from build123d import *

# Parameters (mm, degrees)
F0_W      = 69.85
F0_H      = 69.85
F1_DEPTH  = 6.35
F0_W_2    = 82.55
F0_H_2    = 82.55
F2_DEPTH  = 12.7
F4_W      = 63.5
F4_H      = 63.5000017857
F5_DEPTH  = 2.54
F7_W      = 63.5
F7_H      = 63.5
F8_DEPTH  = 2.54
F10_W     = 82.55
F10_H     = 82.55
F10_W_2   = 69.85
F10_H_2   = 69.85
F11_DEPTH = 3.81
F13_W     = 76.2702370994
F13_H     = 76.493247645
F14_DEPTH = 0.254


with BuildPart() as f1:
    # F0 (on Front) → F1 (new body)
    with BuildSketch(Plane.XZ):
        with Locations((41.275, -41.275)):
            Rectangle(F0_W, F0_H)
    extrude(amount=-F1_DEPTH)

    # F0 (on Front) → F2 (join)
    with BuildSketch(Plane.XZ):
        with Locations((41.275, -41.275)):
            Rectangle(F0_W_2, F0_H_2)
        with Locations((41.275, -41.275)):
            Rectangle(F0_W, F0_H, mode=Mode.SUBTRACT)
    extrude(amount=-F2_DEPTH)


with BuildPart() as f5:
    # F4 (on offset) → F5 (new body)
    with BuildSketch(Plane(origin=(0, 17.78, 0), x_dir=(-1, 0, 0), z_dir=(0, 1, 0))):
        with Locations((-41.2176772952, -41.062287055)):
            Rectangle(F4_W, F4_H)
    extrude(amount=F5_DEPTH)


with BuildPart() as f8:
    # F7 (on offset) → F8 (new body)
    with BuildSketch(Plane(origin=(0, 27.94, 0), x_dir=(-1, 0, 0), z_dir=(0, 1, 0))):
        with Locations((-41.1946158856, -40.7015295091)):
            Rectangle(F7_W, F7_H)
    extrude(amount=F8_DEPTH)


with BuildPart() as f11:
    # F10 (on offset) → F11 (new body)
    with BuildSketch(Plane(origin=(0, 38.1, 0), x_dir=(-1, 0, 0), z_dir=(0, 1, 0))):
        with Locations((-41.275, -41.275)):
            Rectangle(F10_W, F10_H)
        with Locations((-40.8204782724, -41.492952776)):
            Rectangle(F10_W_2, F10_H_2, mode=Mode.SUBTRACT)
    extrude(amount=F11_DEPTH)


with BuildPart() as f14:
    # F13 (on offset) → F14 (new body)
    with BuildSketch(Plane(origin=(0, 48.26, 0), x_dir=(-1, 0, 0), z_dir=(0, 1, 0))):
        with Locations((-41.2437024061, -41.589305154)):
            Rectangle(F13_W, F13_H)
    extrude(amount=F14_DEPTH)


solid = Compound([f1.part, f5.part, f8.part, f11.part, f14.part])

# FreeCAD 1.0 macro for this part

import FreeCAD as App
import Part
import Sketcher

V = App.Vector
Q = App.Units.Quantity

doc = App.newDocument("Part")
params = doc.addObject("Spreadsheet::Sheet", "Params")
for row, (alias, value) in enumerate([
    ("sketch1_width", "2.75 in"),
    ("pad1_length", "0.25 in"),
    ("sketch2_width", "3.25 in"),
    ("pad2_length", "0.5 in"),
    ("sketch3_width", "2.5 in"),
    ("pad3_length", "0.1 in"),
    ("sketch4_width", "2.5 in"),
    ("pad4_length", "0.1 in"),
    ("sketch5_width", "3.25 in"),
    ("sketch5_width2", "2.75 in"),
    ("pad5_length", "0.15 in"),
    ("pad6_length", "0.01 in"),
], start=1):
    params.set(f"A{row}", alias)
    params.set(f"B{row}", "=" + value)
    params.setAlias(f"B{row}", alias)

body = doc.addObject("PartDesign::Body", "Body")

# Sketch on XZ plane
sketch1 = body.newObject("Sketcher::SketchObject", "Sketch")
sketch1.AttachmentSupport = (doc.getObject("XZ_Plane"), [""])
sketch1.MapMode = "FlatFace"
sketch1.addGeometry(Part.LineSegment(V(6.35, -6.35, 0), V(6.35, -76.2, 0)), False)
sketch1.addGeometry(Part.LineSegment(V(6.35, -76.2, 0), V(76.2, -76.2, 0)), False)
sketch1.addGeometry(Part.LineSegment(V(76.2, -76.2, 0), V(76.2, -6.35, 0)), False)
sketch1.addGeometry(Part.LineSegment(V(76.2, -6.35, 0), V(6.35, -6.35, 0)), False)
sketch1.addConstraint(Sketcher.Constraint("Coincident", 0, 2, 1, 1))
sketch1.addConstraint(Sketcher.Constraint("Coincident", 1, 2, 2, 1))
sketch1.addConstraint(Sketcher.Constraint("Coincident", 2, 2, 3, 1))
sketch1.addConstraint(Sketcher.Constraint("Coincident", 3, 2, 0, 1))
sketch1.addConstraint(Sketcher.Constraint("Vertical", 0))
sketch1.addConstraint(Sketcher.Constraint("Horizontal", 1))
sketch1.addConstraint(Sketcher.Constraint("Vertical", 2))
sketch1.addConstraint(Sketcher.Constraint("Horizontal", 3))
sketch1.addConstraint(Sketcher.Constraint("Equal", 3, 0))
sketch1.addConstraint(Sketcher.Constraint("DistanceY", 0, 2, -1, 1, Q("3 in")))
sketch1.addConstraint(Sketcher.Constraint("DistanceX", -1, 1, 1, 2, Q("3 in")))
sketch1.addConstraint(Sketcher.Constraint("DistanceX", 1, 1, 1, 2, Q("2.75 in")))
sketch1.setExpression("Constraints[11]", "Params.sketch1_width")
pad1 = body.newObject("PartDesign::Pad", "Pad")
pad1.Profile = sketch1
pad1.setExpression("Length", "Params.pad1_length")
pad1.Reversed = True

# Sketch on XZ plane
sketch2 = body.newObject("Sketcher::SketchObject", "Sketch001")
sketch2.AttachmentSupport = (doc.getObject("XZ_Plane"), [""])
sketch2.MapMode = "FlatFace"
sketch2.addGeometry(Part.LineSegment(V(0, 0, 0), V(0, -82.55, 0)), False)
sketch2.addGeometry(Part.LineSegment(V(0, -82.55, 0), V(82.55, -82.55, 0)), False)
sketch2.addGeometry(Part.LineSegment(V(82.55, -82.55, 0), V(82.55, 0, 0)), False)
sketch2.addGeometry(Part.LineSegment(V(82.55, 0, 0), V(0, 0, 0)), False)
sketch2.addGeometry(Part.LineSegment(V(76.2, -76.2, 0), V(6.35, -76.2, 0)), False)
sketch2.addGeometry(Part.LineSegment(V(6.35, -76.2, 0), V(6.35, -6.35, 0)), False)
sketch2.addGeometry(Part.LineSegment(V(6.35, -6.35, 0), V(76.2, -6.35, 0)), False)
sketch2.addGeometry(Part.LineSegment(V(76.2, -6.35, 0), V(76.2, -76.2, 0)), False)
sketch2.addConstraint(Sketcher.Constraint("Coincident", 0, 2, 1, 1))
sketch2.addConstraint(Sketcher.Constraint("Coincident", 1, 2, 2, 1))
sketch2.addConstraint(Sketcher.Constraint("Coincident", 2, 2, 3, 1))
sketch2.addConstraint(Sketcher.Constraint("Coincident", 3, 2, 0, 1))
sketch2.addConstraint(Sketcher.Constraint("Coincident", 4, 2, 5, 1))
sketch2.addConstraint(Sketcher.Constraint("Coincident", 5, 2, 6, 1))
sketch2.addConstraint(Sketcher.Constraint("Coincident", 6, 2, 7, 1))
sketch2.addConstraint(Sketcher.Constraint("Coincident", 7, 2, 4, 1))
sketch2.addConstraint(Sketcher.Constraint("Vertical", 0))
sketch2.addConstraint(Sketcher.Constraint("Horizontal", 1))
sketch2.addConstraint(Sketcher.Constraint("Vertical", 2))
sketch2.addConstraint(Sketcher.Constraint("Horizontal", 3))
sketch2.addConstraint(Sketcher.Constraint("Horizontal", 4))
sketch2.addConstraint(Sketcher.Constraint("Vertical", 5))
sketch2.addConstraint(Sketcher.Constraint("Horizontal", 6))
sketch2.addConstraint(Sketcher.Constraint("Vertical", 7))
sketch2.addConstraint(Sketcher.Constraint("Coincident", 3, 2, -1, 1))
sketch2.addConstraint(Sketcher.Constraint("Equal", 3, 0))
sketch2.addConstraint(Sketcher.Constraint("Equal", 6, 5))
sketch2.addConstraint(Sketcher.Constraint("DistanceY", 4, 2, -1, 1, Q("3 in")))
sketch2.addConstraint(Sketcher.Constraint("DistanceX", -1, 1, 6, 2, Q("3 in")))
sketch2.addConstraint(Sketcher.Constraint("DistanceX", 4, 2, 1, 2, Q("3 in")))
sketch2.addConstraint(Sketcher.Constraint("DistanceX", 1, 1, 1, 2, Q("3.25 in")))
sketch2.setExpression("Constraints[22]", "Params.sketch2_width")
pad2 = body.newObject("PartDesign::Pad", "Pad001")
pad2.Profile = sketch2
pad2.setExpression("Length", "Params.pad2_length")
pad2.Reversed = True
body2 = doc.addObject("PartDesign::Body", "Body001")

# Sketch on XZ plane
sketch3 = body2.newObject("Sketcher::SketchObject", "Sketch002")
sketch3.AttachmentSupport = (doc.getObject("XZ_Plane001"), [""])
sketch3.MapMode = "FlatFace"
sketch3.AttachmentOffset = App.Placement(V(0, 0, -0.7 * 25.4), App.Rotation())
sketch3.addGeometry(Part.LineSegment(V(72.967677, -9.312286, 0), V(72.967677, -72.812288, 0)), False)
sketch3.addGeometry(Part.LineSegment(V(72.967677, -72.812288, 0), V(9.467677, -72.812288, 0)), False)
sketch3.addGeometry(Part.LineSegment(V(9.467677, -72.812288, 0), V(9.467677, -9.312286, 0)), False)
sketch3.addGeometry(Part.LineSegment(V(9.467677, -9.312286, 0), V(72.967677, -9.312286, 0)), False)
sketch3.addConstraint(Sketcher.Constraint("Coincident", 0, 2, 1, 1))
sketch3.addConstraint(Sketcher.Constraint("Coincident", 1, 2, 2, 1))
sketch3.addConstraint(Sketcher.Constraint("Coincident", 2, 2, 3, 1))
sketch3.addConstraint(Sketcher.Constraint("Coincident", 3, 2, 0, 1))
sketch3.addConstraint(Sketcher.Constraint("Vertical", 0))
sketch3.addConstraint(Sketcher.Constraint("Horizontal", 1))
sketch3.addConstraint(Sketcher.Constraint("Vertical", 2))
sketch3.addConstraint(Sketcher.Constraint("Horizontal", 3))
sketch3.addConstraint(Sketcher.Constraint("Equal", 3, 0))
sketch3.addConstraint(Sketcher.Constraint("DistanceX", 1, 2, 1, 1, Q("2.5 in")))
sketch3.addConstraint(Sketcher.Constraint("DistanceX", -1, 1, 0, 2, 72.967677))
sketch3.addConstraint(Sketcher.Constraint("DistanceY", 0, 2, -1, 1, 72.812288))
sketch3.setExpression("Constraints[9]", "Params.sketch3_width")
pad3 = body2.newObject("PartDesign::Pad", "Pad002")
pad3.Profile = sketch3
pad3.setExpression("Length", "Params.pad3_length")
pad3.Reversed = True
body3 = doc.addObject("PartDesign::Body", "Body002")

# Sketch on XZ plane
sketch4 = body3.newObject("Sketcher::SketchObject", "Sketch003")
sketch4.AttachmentSupport = (doc.getObject("XZ_Plane002"), [""])
sketch4.MapMode = "FlatFace"
sketch4.AttachmentOffset = App.Placement(V(0, 0, -1.1 * 25.4), App.Rotation())
sketch4.addGeometry(Part.LineSegment(V(72.944616, -8.95153, 0), V(72.944616, -72.45153, 0)), False)
sketch4.addGeometry(Part.LineSegment(V(72.944616, -72.45153, 0), V(9.444616, -72.45153, 0)), False)
sketch4.addGeometry(Part.LineSegment(V(9.444616, -72.45153, 0), V(9.444616, -8.95153, 0)), False)
sketch4.addGeometry(Part.LineSegment(V(9.444616, -8.95153, 0), V(72.944616, -8.95153, 0)), False)
sketch4.addConstraint(Sketcher.Constraint("Coincident", 0, 2, 1, 1))
sketch4.addConstraint(Sketcher.Constraint("Coincident", 1, 2, 2, 1))
sketch4.addConstraint(Sketcher.Constraint("Coincident", 2, 2, 3, 1))
sketch4.addConstraint(Sketcher.Constraint("Coincident", 3, 2, 0, 1))
sketch4.addConstraint(Sketcher.Constraint("Vertical", 0))
sketch4.addConstraint(Sketcher.Constraint("Horizontal", 1))
sketch4.addConstraint(Sketcher.Constraint("Vertical", 2))
sketch4.addConstraint(Sketcher.Constraint("Horizontal", 3))
sketch4.addConstraint(Sketcher.Constraint("Equal", 3, 0))
sketch4.addConstraint(Sketcher.Constraint("DistanceX", 1, 2, 1, 1, Q("2.5 in")))
sketch4.addConstraint(Sketcher.Constraint("DistanceY", 0, 2, -1, 1, 72.45153))
sketch4.addConstraint(Sketcher.Constraint("DistanceX", -1, 1, 0, 2, 72.944616))
sketch4.setExpression("Constraints[9]", "Params.sketch4_width")
pad4 = body3.newObject("PartDesign::Pad", "Pad003")
pad4.Profile = sketch4
pad4.setExpression("Length", "Params.pad4_length")
pad4.Reversed = True
body4 = doc.addObject("PartDesign::Body", "Body003")

# Sketch on XZ plane
sketch5 = body4.newObject("Sketcher::SketchObject", "Sketch004")
sketch5.AttachmentSupport = (doc.getObject("XZ_Plane003"), [""])
sketch5.MapMode = "FlatFace"
sketch5.AttachmentOffset = App.Placement(V(0, 0, -1.5 * 25.4), App.Rotation())
sketch5.addGeometry(Part.LineSegment(V(82.55, 0, 0), V(82.55, -82.55, 0)), False)
sketch5.addGeometry(Part.LineSegment(V(82.55, -82.55, 0), V(0, -82.55, 0)), False)
sketch5.addGeometry(Part.LineSegment(V(0, -82.55, 0), V(0, 0, 0)), False)
sketch5.addGeometry(Part.LineSegment(V(0, 0, 0), V(82.55, 0, 0)), False)
sketch5.addGeometry(Part.LineSegment(V(5.895478, -76.417953, 0), V(75.745478, -76.417953, 0)), False)
sketch5.addGeometry(Part.LineSegment(V(75.745478, -76.417953, 0), V(75.745478, -6.567953, 0)), False)
sketch5.addGeometry(Part.LineSegment(V(75.745478, -6.567953, 0), V(5.895478, -6.567953, 0)), False)
sketch5.addGeometry(Part.LineSegment(V(5.895478, -6.567953, 0), V(5.895478, -76.417953, 0)), False)
sketch5.addConstraint(Sketcher.Constraint("Coincident", 0, 2, 1, 1))
sketch5.addConstraint(Sketcher.Constraint("Coincident", 1, 2, 2, 1))
sketch5.addConstraint(Sketcher.Constraint("Coincident", 2, 2, 3, 1))
sketch5.addConstraint(Sketcher.Constraint("Coincident", 3, 2, 0, 1))
sketch5.addConstraint(Sketcher.Constraint("Coincident", 4, 2, 5, 1))
sketch5.addConstraint(Sketcher.Constraint("Coincident", 5, 2, 6, 1))
sketch5.addConstraint(Sketcher.Constraint("Coincident", 6, 2, 7, 1))
sketch5.addConstraint(Sketcher.Constraint("Coincident", 7, 2, 4, 1))
sketch5.addConstraint(Sketcher.Constraint("Vertical", 0))
sketch5.addConstraint(Sketcher.Constraint("Horizontal", 1))
sketch5.addConstraint(Sketcher.Constraint("Vertical", 2))
sketch5.addConstraint(Sketcher.Constraint("Horizontal", 3))
sketch5.addConstraint(Sketcher.Constraint("Horizontal", 4))
sketch5.addConstraint(Sketcher.Constraint("Vertical", 5))
sketch5.addConstraint(Sketcher.Constraint("Horizontal", 6))
sketch5.addConstraint(Sketcher.Constraint("Vertical", 7))
sketch5.addConstraint(Sketcher.Constraint("Coincident", 2, 2, -1, 1))
sketch5.addConstraint(Sketcher.Constraint("Equal", 3, 0))
sketch5.addConstraint(Sketcher.Constraint("Equal", 6, 5))
sketch5.addConstraint(Sketcher.Constraint("DistanceX", 1, 2, 1, 1, Q("3.25 in")))
sketch5.addConstraint(Sketcher.Constraint("DistanceX", 4, 1, 4, 2, Q("2.75 in")))
sketch5.addConstraint(Sketcher.Constraint("DistanceX", -1, 1, 4, 2, 75.745478))
sketch5.addConstraint(Sketcher.Constraint("DistanceY", 4, 2, -1, 1, 76.417953))
sketch5.setExpression("Constraints[19]", "Params.sketch5_width")
sketch5.setExpression("Constraints[20]", "Params.sketch5_width2")
pad5 = body4.newObject("PartDesign::Pad", "Pad004")
pad5.Profile = sketch5
pad5.setExpression("Length", "Params.pad5_length")
pad5.Reversed = True
body5 = doc.addObject("PartDesign::Body", "Body004")

# Sketch on XZ plane
sketch6 = body5.newObject("Sketcher::SketchObject", "Sketch005")
sketch6.AttachmentSupport = (doc.getObject("XZ_Plane004"), [""])
sketch6.MapMode = "FlatFace"
sketch6.AttachmentOffset = App.Placement(V(0, 0, -1.9 * 25.4), App.Rotation())
sketch6.addGeometry(Part.LineSegment(V(79.378821, -3.342681, 0), V(79.378821, -79.835929, 0)), False)
sketch6.addGeometry(Part.LineSegment(V(79.378821, -79.835929, 0), V(3.108584, -79.835929, 0)), False)
sketch6.addGeometry(Part.LineSegment(V(3.108584, -79.835929, 0), V(3.108584, -3.342681, 0)), False)
sketch6.addGeometry(Part.LineSegment(V(3.108584, -3.342681, 0), V(79.378821, -3.342681, 0)), False)
sketch6.addConstraint(Sketcher.Constraint("Coincident", 0, 2, 1, 1))
sketch6.addConstraint(Sketcher.Constraint("Coincident", 1, 2, 2, 1))
sketch6.addConstraint(Sketcher.Constraint("Coincident", 2, 2, 3, 1))
sketch6.addConstraint(Sketcher.Constraint("Coincident", 3, 2, 0, 1))
sketch6.addConstraint(Sketcher.Constraint("Vertical", 0))
sketch6.addConstraint(Sketcher.Constraint("Horizontal", 1))
sketch6.addConstraint(Sketcher.Constraint("Vertical", 2))
sketch6.addConstraint(Sketcher.Constraint("Horizontal", 3))
sketch6.addConstraint(Sketcher.Constraint("DistanceX", 1, 2, 1, 1, 76.270237))
sketch6.addConstraint(Sketcher.Constraint("DistanceY", 0, 2, 0, 1, 76.493248))
sketch6.addConstraint(Sketcher.Constraint("DistanceX", -1, 1, 0, 2, 79.378821))
sketch6.addConstraint(Sketcher.Constraint("DistanceY", 0, 2, -1, 1, 79.835929))
pad6 = body5.newObject("PartDesign::Pad", "Pad005")
pad6.Profile = sketch6
pad6.setExpression("Length", "Params.pad6_length")
pad6.Reversed = True

doc.recompute()
